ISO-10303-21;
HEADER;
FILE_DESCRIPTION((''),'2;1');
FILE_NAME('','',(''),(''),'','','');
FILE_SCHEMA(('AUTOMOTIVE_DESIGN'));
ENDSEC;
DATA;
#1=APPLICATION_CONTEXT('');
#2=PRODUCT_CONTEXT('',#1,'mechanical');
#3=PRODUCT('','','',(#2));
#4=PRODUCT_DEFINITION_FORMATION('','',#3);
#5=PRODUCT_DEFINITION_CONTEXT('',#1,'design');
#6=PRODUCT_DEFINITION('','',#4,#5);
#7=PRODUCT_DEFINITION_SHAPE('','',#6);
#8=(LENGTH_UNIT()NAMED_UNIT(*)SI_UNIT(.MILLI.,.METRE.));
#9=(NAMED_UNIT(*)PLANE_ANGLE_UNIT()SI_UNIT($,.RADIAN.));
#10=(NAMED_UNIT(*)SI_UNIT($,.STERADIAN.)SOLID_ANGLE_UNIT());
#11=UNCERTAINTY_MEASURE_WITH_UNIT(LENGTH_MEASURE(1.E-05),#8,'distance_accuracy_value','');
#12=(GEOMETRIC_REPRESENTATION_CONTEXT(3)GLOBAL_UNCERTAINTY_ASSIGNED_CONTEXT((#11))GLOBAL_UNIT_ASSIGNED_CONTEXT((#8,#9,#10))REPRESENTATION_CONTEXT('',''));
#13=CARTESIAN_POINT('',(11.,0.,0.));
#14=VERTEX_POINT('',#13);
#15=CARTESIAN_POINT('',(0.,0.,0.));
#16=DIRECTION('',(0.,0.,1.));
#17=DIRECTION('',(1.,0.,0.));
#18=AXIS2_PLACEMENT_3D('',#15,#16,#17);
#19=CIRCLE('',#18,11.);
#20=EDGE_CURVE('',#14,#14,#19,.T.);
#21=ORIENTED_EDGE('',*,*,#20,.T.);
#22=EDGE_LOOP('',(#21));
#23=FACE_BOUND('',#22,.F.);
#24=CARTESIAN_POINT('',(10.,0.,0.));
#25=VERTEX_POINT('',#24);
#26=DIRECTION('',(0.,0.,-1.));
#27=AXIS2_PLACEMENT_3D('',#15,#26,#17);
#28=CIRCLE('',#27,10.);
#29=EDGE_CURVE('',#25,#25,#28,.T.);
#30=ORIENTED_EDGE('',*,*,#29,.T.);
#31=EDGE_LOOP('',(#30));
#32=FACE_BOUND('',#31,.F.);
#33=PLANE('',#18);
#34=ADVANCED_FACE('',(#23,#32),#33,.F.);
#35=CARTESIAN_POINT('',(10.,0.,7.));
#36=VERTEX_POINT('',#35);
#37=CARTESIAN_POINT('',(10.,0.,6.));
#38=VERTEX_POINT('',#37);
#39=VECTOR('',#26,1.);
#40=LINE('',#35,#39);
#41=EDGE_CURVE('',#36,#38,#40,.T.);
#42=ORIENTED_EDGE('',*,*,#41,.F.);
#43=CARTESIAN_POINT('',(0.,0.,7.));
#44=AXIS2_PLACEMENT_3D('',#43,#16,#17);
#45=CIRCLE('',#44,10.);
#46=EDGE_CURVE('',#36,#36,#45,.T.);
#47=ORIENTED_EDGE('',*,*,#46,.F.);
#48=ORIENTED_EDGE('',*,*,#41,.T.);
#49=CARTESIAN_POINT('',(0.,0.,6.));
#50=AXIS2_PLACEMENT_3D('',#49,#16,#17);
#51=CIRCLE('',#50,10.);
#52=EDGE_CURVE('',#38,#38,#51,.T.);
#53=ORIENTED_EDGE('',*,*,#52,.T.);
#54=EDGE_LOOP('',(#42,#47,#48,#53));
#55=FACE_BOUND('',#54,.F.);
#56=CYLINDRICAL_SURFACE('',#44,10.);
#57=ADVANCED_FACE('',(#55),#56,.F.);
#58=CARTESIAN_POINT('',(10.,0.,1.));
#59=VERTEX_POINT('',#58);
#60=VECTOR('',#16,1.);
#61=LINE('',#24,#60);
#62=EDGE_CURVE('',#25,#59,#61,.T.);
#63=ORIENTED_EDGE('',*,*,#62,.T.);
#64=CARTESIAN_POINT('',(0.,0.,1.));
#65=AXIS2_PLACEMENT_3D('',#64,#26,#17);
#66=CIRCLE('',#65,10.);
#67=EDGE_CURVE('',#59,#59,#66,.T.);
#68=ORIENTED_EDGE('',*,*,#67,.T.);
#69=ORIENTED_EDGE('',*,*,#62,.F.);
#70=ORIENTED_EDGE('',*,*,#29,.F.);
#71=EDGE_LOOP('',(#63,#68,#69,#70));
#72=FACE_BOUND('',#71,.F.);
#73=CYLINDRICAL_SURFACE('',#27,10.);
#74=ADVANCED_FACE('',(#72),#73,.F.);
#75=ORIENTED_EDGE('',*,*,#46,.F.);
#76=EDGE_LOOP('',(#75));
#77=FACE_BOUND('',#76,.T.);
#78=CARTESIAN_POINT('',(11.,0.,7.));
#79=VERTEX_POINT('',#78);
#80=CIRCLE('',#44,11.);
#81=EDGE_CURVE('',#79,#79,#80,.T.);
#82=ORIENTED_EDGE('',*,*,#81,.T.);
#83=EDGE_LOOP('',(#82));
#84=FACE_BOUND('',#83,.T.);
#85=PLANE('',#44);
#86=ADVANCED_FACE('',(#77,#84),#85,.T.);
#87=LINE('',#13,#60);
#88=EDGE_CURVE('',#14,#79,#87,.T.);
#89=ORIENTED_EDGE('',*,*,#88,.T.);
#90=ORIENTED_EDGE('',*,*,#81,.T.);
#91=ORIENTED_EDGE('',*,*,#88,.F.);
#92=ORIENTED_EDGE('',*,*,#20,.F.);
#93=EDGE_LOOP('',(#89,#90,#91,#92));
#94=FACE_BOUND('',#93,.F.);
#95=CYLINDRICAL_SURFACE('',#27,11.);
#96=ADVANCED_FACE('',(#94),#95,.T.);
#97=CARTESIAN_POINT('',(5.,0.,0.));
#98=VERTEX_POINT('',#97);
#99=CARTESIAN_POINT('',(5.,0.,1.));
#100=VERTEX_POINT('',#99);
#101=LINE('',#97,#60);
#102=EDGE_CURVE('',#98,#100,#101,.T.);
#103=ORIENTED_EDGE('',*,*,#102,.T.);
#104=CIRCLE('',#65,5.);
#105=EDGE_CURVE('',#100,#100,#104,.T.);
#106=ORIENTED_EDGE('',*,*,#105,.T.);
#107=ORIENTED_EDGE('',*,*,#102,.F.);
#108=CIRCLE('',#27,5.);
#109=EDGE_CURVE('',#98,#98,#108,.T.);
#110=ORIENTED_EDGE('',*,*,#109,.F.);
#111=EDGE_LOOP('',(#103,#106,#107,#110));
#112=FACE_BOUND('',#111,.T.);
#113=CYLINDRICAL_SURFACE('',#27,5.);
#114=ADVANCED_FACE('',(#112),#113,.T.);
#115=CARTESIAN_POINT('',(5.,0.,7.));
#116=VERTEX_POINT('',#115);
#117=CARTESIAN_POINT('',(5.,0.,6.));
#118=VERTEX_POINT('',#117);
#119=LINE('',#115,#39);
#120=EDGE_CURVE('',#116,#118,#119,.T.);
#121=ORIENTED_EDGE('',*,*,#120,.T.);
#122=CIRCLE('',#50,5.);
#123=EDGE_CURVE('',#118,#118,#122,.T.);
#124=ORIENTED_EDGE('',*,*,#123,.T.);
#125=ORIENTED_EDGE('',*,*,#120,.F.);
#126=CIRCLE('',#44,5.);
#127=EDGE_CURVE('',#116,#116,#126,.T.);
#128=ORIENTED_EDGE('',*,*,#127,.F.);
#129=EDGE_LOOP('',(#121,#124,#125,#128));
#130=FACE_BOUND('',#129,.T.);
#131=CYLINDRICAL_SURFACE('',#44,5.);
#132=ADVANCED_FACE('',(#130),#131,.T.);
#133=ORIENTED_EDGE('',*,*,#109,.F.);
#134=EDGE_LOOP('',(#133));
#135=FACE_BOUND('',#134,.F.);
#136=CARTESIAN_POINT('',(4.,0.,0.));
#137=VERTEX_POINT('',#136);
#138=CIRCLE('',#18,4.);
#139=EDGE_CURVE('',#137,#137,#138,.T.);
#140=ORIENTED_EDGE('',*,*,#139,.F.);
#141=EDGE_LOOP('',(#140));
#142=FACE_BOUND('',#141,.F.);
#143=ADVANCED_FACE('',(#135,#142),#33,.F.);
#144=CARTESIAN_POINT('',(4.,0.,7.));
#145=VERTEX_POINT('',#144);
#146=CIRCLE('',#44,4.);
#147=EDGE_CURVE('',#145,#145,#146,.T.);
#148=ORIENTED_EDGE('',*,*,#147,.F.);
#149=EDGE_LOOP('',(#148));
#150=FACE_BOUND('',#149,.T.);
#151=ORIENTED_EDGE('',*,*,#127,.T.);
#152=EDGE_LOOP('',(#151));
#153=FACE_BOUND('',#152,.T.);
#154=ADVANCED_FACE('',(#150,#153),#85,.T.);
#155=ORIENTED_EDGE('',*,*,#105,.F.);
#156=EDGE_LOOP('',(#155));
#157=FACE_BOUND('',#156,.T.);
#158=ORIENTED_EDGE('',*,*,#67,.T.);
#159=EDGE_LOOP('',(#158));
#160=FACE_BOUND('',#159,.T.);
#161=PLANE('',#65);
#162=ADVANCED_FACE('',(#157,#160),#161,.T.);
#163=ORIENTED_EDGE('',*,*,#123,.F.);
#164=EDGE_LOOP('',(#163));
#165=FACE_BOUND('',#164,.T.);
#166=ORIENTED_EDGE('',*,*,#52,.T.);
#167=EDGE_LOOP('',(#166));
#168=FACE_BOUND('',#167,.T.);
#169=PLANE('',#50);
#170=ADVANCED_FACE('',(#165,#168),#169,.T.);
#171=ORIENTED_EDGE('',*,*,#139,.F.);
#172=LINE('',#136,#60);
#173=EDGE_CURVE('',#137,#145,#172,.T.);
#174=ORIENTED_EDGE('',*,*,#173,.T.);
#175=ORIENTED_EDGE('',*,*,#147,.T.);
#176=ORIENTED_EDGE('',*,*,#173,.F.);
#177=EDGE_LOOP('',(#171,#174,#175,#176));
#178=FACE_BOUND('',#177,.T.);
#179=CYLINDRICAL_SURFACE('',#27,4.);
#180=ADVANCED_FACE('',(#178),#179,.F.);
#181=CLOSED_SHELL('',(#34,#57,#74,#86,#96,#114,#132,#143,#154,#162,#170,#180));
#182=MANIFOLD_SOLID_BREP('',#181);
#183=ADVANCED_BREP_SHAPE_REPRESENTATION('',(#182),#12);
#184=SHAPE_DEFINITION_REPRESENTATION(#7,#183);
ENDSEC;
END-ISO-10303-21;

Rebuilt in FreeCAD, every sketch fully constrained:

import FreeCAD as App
import Part
import Sketcher
Q = App.Units.Quantity

doc = App.newDocument("Part")
body = doc.addObject("PartDesign::Body", "Body")

# Sketch on XY plane
sketch1 = body.newObject("Sketcher::SketchObject", "Sketch")
sketch1.AttachmentSupport = (doc.getObject("XY_Plane"), [""])
sketch1.MapMode = "FlatFace"
sketch1.addGeometry([
    Part.Circle(App.Vector(0, 0, 0), App.Vector(0, 0, 1), 11),
    Part.Circle(App.Vector(0, 0, 0), App.Vector(0, 0, 1), 4),
], False)
sketch1.addConstraint([
    Sketcher.Constraint("Coincident", 0, 3, -1, 1),
    Sketcher.Constraint("Coincident", 1, 3, -1, 1),
    Sketcher.Constraint("Diameter", 0, Q("22 mm")),
    Sketcher.Constraint("Diameter", 1, Q("8 mm")),
])
pad1 = body.newObject("PartDesign::Pad", "Pad")
pad1.Profile = sketch1
pad1.Length = 7

# Sketch on XY plane
sketch2 = body.newObject("Sketcher::SketchObject", "Sketch001")
sketch2.AttachmentSupport = (doc.getObject("XY_Plane"), [""])
sketch2.MapMode = "FlatFace"
sketch2.AttachmentOffset = App.Placement(App.Vector(0, 0, 7), App.Rotation())
sketch2.addGeometry([
    Part.Circle(App.Vector(0, 0, 0), App.Vector(0, 0, 1), 10),
    Part.Circle(App.Vector(0, 0, 0), App.Vector(0, 0, 1), 5),
], False)
sketch2.addConstraint([
    Sketcher.Constraint("Coincident", 0, 3, -1, 1),
    Sketcher.Constraint("Coincident", 1, 3, -1, 1),
    Sketcher.Constraint("Diameter", 0, Q("20 mm")),
    Sketcher.Constraint("Diameter", 1, Q("10 mm")),
])
pocket1 = body.newObject("PartDesign::Pocket", "Pocket")
pocket1.Profile = sketch2
pocket1.Length = 1

# Sketch on XY plane
sketch3 = body.newObject("Sketcher::SketchObject", "Sketch002")
sketch3.AttachmentSupport = (doc.getObject("XY_Plane"), [""])
sketch3.MapMode = "FlatFace"
sketch3.addGeometry([
    Part.Circle(App.Vector(0, 0, 0), App.Vector(0, 0, 1), 10),
    Part.Circle(App.Vector(0, 0, 0), App.Vector(0, 0, 1), 5),
], False)
sketch3.addConstraint([
    Sketcher.Constraint("Coincident", 0, 3, -1, 1),
    Sketcher.Constraint("Coincident", 1, 3, -1, 1),
    Sketcher.Constraint("Diameter", 0, Q("20 mm")),
    Sketcher.Constraint("Diameter", 1, Q("10 mm")),
])
pocket2 = body.newObject("PartDesign::Pocket", "Pocket001")
pocket2.Profile = sketch3
pocket2.Length = 1
pocket2.Reversed = True

doc.recompute()
